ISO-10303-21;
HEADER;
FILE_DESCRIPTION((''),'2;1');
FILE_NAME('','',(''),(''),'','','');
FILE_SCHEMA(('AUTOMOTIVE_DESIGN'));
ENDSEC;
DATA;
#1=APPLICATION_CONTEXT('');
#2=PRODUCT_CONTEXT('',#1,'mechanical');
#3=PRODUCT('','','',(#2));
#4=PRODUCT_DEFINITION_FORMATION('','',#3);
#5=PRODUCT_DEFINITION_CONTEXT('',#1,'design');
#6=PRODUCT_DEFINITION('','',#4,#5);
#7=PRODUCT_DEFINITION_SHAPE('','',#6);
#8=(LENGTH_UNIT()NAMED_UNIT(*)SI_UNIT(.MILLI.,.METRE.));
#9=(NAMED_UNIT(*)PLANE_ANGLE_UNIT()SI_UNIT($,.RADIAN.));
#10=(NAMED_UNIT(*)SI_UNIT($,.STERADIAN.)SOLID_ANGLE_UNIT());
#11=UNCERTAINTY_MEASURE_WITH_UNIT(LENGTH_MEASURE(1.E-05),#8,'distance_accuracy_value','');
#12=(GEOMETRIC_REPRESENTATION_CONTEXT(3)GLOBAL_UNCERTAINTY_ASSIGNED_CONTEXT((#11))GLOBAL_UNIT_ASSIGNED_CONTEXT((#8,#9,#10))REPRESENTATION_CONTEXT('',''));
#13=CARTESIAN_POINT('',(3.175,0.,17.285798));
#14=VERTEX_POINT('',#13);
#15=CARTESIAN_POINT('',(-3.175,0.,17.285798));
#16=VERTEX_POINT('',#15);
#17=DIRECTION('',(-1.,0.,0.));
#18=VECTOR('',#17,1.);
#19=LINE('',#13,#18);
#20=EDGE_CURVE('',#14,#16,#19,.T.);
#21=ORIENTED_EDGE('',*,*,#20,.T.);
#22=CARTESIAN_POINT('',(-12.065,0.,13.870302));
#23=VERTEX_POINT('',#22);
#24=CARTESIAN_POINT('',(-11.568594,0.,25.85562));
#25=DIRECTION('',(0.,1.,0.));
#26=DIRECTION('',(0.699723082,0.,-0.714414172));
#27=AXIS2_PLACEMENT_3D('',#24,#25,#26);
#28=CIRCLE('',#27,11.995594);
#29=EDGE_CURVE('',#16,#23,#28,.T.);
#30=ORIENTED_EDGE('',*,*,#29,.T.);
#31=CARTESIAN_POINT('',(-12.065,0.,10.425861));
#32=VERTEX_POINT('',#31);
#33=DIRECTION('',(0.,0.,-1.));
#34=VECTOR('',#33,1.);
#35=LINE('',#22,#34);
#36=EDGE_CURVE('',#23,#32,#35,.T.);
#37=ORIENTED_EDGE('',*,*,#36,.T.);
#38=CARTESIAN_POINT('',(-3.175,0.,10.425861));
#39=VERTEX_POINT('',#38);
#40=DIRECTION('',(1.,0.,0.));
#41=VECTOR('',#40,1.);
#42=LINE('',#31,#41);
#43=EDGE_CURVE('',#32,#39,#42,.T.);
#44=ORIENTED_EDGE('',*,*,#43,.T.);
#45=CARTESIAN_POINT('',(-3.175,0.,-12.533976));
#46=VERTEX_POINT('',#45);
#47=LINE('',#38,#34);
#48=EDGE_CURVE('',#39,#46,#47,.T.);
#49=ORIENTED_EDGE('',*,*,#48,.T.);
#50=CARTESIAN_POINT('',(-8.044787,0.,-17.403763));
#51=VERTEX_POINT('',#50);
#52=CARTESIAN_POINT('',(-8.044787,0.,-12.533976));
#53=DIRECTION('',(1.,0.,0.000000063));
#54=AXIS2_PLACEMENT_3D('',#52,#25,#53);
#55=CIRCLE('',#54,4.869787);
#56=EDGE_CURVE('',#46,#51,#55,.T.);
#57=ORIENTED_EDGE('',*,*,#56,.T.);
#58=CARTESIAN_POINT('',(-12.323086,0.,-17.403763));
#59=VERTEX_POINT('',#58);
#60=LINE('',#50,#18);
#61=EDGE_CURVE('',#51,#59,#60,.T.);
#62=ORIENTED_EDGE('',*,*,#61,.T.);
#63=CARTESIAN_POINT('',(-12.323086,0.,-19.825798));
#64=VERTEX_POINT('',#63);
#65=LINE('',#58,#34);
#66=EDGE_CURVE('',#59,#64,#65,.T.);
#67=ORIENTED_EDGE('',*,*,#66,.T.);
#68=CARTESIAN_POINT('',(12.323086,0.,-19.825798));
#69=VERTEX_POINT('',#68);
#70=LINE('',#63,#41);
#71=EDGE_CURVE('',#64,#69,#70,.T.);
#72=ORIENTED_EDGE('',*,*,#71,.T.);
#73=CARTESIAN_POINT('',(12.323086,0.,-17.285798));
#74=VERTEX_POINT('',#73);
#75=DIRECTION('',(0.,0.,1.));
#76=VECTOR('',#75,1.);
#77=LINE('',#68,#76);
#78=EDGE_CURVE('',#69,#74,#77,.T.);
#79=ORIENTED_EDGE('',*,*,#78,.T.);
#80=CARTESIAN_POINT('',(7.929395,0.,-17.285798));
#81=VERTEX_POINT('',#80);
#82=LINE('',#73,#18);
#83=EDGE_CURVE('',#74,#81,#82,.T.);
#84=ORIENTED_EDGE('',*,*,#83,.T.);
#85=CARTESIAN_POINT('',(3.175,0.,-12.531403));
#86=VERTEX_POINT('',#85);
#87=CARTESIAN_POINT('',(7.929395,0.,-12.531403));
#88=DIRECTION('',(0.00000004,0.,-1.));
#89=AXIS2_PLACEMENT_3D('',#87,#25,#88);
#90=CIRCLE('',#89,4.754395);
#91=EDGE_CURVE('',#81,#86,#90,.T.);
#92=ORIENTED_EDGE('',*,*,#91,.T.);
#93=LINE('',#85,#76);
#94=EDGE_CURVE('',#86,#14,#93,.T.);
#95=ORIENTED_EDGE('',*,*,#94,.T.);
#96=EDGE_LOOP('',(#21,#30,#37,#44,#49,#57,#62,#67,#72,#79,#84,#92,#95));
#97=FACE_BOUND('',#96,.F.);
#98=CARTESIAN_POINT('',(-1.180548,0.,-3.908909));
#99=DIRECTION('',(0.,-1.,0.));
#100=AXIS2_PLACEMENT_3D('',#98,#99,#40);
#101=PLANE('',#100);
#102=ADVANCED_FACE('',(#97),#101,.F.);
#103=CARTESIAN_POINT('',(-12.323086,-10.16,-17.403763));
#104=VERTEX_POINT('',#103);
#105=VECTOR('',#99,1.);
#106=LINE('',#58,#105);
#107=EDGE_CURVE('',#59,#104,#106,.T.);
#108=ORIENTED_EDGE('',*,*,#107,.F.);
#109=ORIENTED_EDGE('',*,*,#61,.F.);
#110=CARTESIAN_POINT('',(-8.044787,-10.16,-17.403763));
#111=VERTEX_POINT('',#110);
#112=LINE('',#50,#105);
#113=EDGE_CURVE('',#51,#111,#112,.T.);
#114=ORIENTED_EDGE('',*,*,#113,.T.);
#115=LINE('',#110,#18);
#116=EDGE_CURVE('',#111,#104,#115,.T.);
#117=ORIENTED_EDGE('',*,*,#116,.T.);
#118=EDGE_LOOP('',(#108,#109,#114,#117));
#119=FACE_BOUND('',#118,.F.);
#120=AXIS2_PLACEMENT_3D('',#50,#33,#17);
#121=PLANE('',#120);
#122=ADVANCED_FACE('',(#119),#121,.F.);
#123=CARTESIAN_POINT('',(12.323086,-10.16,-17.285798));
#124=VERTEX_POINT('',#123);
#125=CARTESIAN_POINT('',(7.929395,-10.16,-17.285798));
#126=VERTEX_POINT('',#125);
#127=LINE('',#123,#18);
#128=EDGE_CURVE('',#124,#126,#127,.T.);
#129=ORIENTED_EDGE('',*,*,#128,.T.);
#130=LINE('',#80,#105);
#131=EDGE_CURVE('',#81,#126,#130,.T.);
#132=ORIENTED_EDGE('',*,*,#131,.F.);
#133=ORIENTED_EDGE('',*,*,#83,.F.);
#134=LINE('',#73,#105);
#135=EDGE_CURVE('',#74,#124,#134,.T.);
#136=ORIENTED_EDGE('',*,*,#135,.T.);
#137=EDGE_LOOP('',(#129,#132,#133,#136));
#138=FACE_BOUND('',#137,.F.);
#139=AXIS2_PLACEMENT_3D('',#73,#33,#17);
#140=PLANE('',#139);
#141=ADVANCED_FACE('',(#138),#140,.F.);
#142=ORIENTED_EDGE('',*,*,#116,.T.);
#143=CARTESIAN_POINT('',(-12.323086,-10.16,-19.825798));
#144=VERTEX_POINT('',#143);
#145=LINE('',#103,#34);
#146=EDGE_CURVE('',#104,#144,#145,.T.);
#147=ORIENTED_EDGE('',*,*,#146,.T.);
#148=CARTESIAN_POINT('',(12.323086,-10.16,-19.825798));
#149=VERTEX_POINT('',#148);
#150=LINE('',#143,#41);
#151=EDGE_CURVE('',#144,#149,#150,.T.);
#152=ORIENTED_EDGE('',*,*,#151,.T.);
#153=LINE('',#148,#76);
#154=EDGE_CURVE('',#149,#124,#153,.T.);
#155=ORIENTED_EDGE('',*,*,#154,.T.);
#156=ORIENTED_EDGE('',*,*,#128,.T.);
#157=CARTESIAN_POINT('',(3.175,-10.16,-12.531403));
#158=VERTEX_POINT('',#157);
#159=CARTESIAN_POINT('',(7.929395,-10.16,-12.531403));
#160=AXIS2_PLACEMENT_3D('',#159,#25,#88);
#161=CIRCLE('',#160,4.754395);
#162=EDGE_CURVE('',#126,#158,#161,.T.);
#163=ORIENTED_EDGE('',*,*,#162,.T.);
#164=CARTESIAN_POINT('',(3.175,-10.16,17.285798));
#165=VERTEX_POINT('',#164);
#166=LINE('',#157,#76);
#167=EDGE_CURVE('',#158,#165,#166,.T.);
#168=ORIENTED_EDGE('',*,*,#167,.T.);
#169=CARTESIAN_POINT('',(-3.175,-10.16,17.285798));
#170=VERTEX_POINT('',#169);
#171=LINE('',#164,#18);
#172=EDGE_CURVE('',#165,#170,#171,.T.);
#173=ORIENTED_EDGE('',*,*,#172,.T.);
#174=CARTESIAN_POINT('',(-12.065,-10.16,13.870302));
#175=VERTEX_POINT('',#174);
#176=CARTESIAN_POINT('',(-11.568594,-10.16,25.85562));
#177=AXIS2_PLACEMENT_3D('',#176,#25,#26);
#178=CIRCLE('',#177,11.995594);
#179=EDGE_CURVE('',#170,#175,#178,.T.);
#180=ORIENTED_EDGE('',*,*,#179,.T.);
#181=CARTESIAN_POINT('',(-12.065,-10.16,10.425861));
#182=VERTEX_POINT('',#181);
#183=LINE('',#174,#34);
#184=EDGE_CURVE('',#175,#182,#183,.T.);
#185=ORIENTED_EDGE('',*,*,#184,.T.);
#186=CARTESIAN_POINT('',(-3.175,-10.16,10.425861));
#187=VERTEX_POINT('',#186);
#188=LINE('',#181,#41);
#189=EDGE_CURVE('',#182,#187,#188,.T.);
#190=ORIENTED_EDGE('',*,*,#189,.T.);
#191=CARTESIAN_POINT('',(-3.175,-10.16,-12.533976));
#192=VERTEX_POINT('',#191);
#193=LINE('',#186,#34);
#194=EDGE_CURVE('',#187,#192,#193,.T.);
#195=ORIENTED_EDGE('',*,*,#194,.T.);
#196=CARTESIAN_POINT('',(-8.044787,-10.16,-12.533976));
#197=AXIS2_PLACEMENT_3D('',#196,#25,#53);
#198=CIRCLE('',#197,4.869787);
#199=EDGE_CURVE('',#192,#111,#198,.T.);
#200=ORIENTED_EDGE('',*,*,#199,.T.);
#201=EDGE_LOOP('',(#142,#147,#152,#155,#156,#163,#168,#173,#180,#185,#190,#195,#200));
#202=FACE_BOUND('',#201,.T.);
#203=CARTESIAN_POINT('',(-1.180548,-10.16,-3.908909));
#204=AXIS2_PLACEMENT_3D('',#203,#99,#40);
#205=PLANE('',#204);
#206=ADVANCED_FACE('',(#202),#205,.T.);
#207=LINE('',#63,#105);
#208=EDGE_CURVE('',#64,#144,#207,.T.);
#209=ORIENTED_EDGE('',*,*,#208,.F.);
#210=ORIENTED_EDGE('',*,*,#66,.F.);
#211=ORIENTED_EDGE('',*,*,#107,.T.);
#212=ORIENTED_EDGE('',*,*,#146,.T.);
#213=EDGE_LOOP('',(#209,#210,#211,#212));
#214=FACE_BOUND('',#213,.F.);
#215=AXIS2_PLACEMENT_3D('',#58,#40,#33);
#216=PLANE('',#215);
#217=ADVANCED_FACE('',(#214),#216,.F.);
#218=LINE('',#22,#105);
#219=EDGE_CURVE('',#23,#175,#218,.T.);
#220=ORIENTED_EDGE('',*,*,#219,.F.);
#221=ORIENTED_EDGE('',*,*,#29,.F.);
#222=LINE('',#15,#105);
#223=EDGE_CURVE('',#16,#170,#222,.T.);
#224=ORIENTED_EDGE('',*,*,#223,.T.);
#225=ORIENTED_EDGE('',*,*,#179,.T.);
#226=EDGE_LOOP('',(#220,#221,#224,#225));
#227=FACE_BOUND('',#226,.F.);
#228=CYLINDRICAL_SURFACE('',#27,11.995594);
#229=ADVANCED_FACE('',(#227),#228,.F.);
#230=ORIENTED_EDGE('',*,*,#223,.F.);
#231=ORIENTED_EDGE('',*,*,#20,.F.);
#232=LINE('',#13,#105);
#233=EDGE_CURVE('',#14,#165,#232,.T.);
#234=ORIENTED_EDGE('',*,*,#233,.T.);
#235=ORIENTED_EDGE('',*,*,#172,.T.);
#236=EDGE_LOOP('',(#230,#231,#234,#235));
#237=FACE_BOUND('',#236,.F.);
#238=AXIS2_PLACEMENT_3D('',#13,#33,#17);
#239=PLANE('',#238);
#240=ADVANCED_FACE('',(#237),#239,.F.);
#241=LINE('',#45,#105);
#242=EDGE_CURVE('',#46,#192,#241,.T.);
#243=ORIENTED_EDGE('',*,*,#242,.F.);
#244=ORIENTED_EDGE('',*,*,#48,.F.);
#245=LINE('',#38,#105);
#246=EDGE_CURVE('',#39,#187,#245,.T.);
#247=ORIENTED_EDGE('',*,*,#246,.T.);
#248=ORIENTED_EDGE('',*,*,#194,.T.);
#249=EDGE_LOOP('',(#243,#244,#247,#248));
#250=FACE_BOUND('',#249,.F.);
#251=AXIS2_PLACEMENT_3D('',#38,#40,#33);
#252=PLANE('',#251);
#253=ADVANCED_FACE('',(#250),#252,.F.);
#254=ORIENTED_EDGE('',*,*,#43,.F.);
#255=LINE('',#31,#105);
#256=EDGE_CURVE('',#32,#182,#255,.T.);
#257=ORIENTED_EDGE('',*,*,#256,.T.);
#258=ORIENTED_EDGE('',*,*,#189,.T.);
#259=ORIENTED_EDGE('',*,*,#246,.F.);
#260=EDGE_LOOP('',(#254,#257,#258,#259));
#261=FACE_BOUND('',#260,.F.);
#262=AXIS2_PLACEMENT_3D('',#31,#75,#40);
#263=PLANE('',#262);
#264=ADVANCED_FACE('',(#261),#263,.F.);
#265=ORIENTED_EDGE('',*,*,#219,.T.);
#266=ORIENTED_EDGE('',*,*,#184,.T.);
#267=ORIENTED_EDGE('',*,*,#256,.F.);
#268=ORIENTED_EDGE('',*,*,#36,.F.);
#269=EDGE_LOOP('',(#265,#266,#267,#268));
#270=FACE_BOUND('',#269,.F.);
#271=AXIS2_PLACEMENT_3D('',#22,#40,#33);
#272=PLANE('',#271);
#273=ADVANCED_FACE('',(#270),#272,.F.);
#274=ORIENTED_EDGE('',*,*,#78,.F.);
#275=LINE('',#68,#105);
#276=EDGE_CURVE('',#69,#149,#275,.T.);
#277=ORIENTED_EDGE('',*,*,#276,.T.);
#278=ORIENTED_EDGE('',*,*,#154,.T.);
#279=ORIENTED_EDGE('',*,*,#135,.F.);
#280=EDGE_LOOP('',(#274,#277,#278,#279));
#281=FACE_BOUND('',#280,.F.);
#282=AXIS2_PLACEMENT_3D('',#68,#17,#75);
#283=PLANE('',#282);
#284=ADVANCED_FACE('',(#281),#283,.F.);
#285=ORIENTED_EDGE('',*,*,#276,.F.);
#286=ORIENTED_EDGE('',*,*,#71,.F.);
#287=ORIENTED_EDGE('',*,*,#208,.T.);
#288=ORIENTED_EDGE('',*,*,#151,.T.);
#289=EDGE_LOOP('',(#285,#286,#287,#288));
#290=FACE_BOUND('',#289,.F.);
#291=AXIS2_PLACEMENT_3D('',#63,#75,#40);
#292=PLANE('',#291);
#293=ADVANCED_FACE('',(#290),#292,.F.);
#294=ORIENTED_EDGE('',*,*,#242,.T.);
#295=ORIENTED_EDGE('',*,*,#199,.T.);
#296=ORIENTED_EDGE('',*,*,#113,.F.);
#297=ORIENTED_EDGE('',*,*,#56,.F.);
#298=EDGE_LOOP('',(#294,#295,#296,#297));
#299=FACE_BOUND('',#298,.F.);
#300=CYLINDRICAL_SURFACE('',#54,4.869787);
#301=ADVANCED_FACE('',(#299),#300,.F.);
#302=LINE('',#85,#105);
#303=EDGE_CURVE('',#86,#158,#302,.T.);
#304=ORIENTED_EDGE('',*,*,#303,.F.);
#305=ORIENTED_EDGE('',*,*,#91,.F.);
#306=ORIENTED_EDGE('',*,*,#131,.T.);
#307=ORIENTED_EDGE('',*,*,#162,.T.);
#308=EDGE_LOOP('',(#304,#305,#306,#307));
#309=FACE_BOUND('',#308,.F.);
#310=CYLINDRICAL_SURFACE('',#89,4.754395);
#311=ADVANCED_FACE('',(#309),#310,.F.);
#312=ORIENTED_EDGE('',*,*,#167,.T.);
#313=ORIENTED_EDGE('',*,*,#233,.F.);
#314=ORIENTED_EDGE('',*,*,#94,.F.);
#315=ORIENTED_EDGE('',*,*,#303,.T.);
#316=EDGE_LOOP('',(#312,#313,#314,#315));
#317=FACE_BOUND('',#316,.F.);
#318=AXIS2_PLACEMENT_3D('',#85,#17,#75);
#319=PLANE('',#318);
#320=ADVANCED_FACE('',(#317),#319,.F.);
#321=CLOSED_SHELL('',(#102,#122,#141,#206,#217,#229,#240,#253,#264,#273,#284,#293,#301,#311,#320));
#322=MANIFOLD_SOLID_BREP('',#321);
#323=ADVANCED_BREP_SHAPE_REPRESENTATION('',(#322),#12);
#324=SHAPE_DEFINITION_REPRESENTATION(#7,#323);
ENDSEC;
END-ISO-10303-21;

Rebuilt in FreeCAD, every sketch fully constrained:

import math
import FreeCAD as App
import Part
import Sketcher
Q = App.Units.Quantity

doc = App.newDocument("Part")
body = doc.addObject("PartDesign::Body", "Body")

# Sketch on XZ plane
sketch1 = doc.addObject("Sketcher::SketchObject", "Sketch")
body.addObject(sketch1)
sketch1.AttachmentSupport = (doc.XZ_Plane, [""])
sketch1.MapMode = "FlatFace"
sketch1.addGeometry(Part.LineSegment(App.Vector(3.2, -12.5, 0), App.Vector(3.2, 17.3, 0)), False)
sketch1.addGeometry(Part.LineSegment(App.Vector(3.2, 17.3, 0), App.Vector(-3.2, 17.3, 0)), False)
sketch1.addGeometry(Part.ArcOfCircle(Part.Circle(App.Vector(-11.6, 25.9, 0), App.Vector(0, 0, 1), 12), math.radians(-92), math.radians(-46)), False)
sketch1.addGeometry(Part.LineSegment(App.Vector(-12.1, 13.9, 0), App.Vector(-12.1, 10.4, 0)), False)
sketch1.addGeometry(Part.LineSegment(App.Vector(-12.1, 10.4, 0), App.Vector(-3.2, 10.4, 0)), False)
sketch1.addGeometry(Part.LineSegment(App.Vector(-3.2, 10.4, 0), App.Vector(-3.2, -12.5, 0)), False)
sketch1.addGeometry(Part.ArcOfCircle(Part.Circle(App.Vector(-8, -12.5, 0), App.Vector(0, 0, 1), 4.9), math.radians(-90), math.radians(0)), False)
sketch1.addGeometry(Part.LineSegment(App.Vector(-8, -17.4, 0), App.Vector(-12.3, -17.4, 0)), False)
sketch1.addGeometry(Part.LineSegment(App.Vector(-12.3, -17.4, 0), App.Vector(-12.3, -19.8, 0)), False)
sketch1.addGeometry(Part.LineSegment(App.Vector(-12.3, -19.8, 0), App.Vector(12.3, -19.8, 0)), False)
sketch1.addGeometry(Part.LineSegment(App.Vector(12.3, -19.8, 0), App.Vector(12.3, -17.3, 0)), False)
sketch1.addGeometry(Part.LineSegment(App.Vector(12.3, -17.3, 0), App.Vector(7.9, -17.3, 0)), False)
sketch1.addGeometry(Part.ArcOfCircle(Part.Circle(App.Vector(7.9, -12.5, 0), App.Vector(0, 0, 1), 4.8), math.radians(180), math.radians(270)), False)
sketch1.addConstraint(Sketcher.Constraint("Coincident", 0, 2, 1, 1))
sketch1.addConstraint(Sketcher.Constraint("Coincident", 1, 2, 2, 2))
sketch1.addConstraint(Sketcher.Constraint("Coincident", 2, 1, 3, 1))
sketch1.addConstraint(Sketcher.Constraint("Coincident", 3, 2, 4, 1))
sketch1.addConstraint(Sketcher.Constraint("Coincident", 4, 2, 5, 1))
sketch1.addConstraint(Sketcher.Constraint("Tangent", 5, 2, 6, 2))
sketch1.addConstraint(Sketcher.Constraint("Tangent", 6, 1, 7, 1))
sketch1.addConstraint(Sketcher.Constraint("Coincident", 7, 2, 8, 1))
sketch1.addConstraint(Sketcher.Constraint("Coincident", 8, 2, 9, 1))
sketch1.addConstraint(Sketcher.Constraint("Coincident", 9, 2, 10, 1))
sketch1.addConstraint(Sketcher.Constraint("Coincident", 10, 2, 11, 1))
sketch1.addConstraint(Sketcher.Constraint("Tangent", 11, 2, 12, 2))
sketch1.addConstraint(Sketcher.Constraint("Tangent", 12, 1, 0, 1))
sketch1.addConstraint(Sketcher.Constraint("Vertical", 0))
sketch1.addConstraint(Sketcher.Constraint("Horizontal", 1))
sketch1.addConstraint(Sketcher.Constraint("Vertical", 3))
sketch1.addConstraint(Sketcher.Constraint("Horizontal", 4))
sketch1.addConstraint(Sketcher.Constraint("Vertical", 5))
sketch1.addConstraint(Sketcher.Constraint("Horizontal", 7))
sketch1.addConstraint(Sketcher.Constraint("Vertical", 8))
sketch1.addConstraint(Sketcher.Constraint("Horizontal", 9))
sketch1.addConstraint(Sketcher.Constraint("Vertical", 10))
sketch1.addConstraint(Sketcher.Constraint("Horizontal", 11))
sketch1.addConstraint(Sketcher.Constraint("Vertical", 1, 2, 4, 2))
sketch1.addConstraint(Sketcher.Constraint("DistanceY", 10, 1, 10, 2, Q("0.1 in")))
sketch1.addConstraint(Sketcher.Constraint("DistanceX", 1, 2, 1, 1, Q("0.25 in")))
sketch1.addConstraint(Sketcher.Constraint("DistanceX", 4, 1, 4, 2, Q("0.35 in")))
sketch1.addConstraint(Sketcher.Constraint("DistanceX", -1, 1, 0, 2, Q("0.125 in")))
sketch1.addConstraint(Sketcher.Constraint("DistanceX", 7, 2, 7, 1, 4.278299))
sketch1.addConstraint(Sketcher.Constraint("DistanceY", 0, 1, 0, 2, 29.817201))
sketch1.addConstraint(Sketcher.Constraint("Radius", 2, 11.995594))
sketch1.addConstraint(Sketcher.Constraint("Radius", 6, 4.869787))
sketch1.addConstraint(Sketcher.Constraint("Radius", 12, 4.754395))
sketch1.addConstraint(Sketcher.Constraint("DistanceY", 12, 3, 2, 3, Q("1.5113001 in")))
sketch1.addConstraint(Sketcher.Constraint("DistanceX", 9, 1, 9, 2, 24.646172))
sketch1.addConstraint(Sketcher.Constraint("DistanceY", 3, 2, 3, 1, 3.444441))
sketch1.addConstraint(Sketcher.Constraint("DistanceY", -1, 1, 0, 2, 17.285798))
sketch1.addConstraint(Sketcher.Constraint("DistanceY", 5, 2, 5, 1, 22.959837))
pad1 = doc.addObject("PartDesign::Pad", "Pad")
body.addObject(pad1)
pad1.Profile = sketch1
pad1.Length = Q("0.4 in")

doc.recompute()
